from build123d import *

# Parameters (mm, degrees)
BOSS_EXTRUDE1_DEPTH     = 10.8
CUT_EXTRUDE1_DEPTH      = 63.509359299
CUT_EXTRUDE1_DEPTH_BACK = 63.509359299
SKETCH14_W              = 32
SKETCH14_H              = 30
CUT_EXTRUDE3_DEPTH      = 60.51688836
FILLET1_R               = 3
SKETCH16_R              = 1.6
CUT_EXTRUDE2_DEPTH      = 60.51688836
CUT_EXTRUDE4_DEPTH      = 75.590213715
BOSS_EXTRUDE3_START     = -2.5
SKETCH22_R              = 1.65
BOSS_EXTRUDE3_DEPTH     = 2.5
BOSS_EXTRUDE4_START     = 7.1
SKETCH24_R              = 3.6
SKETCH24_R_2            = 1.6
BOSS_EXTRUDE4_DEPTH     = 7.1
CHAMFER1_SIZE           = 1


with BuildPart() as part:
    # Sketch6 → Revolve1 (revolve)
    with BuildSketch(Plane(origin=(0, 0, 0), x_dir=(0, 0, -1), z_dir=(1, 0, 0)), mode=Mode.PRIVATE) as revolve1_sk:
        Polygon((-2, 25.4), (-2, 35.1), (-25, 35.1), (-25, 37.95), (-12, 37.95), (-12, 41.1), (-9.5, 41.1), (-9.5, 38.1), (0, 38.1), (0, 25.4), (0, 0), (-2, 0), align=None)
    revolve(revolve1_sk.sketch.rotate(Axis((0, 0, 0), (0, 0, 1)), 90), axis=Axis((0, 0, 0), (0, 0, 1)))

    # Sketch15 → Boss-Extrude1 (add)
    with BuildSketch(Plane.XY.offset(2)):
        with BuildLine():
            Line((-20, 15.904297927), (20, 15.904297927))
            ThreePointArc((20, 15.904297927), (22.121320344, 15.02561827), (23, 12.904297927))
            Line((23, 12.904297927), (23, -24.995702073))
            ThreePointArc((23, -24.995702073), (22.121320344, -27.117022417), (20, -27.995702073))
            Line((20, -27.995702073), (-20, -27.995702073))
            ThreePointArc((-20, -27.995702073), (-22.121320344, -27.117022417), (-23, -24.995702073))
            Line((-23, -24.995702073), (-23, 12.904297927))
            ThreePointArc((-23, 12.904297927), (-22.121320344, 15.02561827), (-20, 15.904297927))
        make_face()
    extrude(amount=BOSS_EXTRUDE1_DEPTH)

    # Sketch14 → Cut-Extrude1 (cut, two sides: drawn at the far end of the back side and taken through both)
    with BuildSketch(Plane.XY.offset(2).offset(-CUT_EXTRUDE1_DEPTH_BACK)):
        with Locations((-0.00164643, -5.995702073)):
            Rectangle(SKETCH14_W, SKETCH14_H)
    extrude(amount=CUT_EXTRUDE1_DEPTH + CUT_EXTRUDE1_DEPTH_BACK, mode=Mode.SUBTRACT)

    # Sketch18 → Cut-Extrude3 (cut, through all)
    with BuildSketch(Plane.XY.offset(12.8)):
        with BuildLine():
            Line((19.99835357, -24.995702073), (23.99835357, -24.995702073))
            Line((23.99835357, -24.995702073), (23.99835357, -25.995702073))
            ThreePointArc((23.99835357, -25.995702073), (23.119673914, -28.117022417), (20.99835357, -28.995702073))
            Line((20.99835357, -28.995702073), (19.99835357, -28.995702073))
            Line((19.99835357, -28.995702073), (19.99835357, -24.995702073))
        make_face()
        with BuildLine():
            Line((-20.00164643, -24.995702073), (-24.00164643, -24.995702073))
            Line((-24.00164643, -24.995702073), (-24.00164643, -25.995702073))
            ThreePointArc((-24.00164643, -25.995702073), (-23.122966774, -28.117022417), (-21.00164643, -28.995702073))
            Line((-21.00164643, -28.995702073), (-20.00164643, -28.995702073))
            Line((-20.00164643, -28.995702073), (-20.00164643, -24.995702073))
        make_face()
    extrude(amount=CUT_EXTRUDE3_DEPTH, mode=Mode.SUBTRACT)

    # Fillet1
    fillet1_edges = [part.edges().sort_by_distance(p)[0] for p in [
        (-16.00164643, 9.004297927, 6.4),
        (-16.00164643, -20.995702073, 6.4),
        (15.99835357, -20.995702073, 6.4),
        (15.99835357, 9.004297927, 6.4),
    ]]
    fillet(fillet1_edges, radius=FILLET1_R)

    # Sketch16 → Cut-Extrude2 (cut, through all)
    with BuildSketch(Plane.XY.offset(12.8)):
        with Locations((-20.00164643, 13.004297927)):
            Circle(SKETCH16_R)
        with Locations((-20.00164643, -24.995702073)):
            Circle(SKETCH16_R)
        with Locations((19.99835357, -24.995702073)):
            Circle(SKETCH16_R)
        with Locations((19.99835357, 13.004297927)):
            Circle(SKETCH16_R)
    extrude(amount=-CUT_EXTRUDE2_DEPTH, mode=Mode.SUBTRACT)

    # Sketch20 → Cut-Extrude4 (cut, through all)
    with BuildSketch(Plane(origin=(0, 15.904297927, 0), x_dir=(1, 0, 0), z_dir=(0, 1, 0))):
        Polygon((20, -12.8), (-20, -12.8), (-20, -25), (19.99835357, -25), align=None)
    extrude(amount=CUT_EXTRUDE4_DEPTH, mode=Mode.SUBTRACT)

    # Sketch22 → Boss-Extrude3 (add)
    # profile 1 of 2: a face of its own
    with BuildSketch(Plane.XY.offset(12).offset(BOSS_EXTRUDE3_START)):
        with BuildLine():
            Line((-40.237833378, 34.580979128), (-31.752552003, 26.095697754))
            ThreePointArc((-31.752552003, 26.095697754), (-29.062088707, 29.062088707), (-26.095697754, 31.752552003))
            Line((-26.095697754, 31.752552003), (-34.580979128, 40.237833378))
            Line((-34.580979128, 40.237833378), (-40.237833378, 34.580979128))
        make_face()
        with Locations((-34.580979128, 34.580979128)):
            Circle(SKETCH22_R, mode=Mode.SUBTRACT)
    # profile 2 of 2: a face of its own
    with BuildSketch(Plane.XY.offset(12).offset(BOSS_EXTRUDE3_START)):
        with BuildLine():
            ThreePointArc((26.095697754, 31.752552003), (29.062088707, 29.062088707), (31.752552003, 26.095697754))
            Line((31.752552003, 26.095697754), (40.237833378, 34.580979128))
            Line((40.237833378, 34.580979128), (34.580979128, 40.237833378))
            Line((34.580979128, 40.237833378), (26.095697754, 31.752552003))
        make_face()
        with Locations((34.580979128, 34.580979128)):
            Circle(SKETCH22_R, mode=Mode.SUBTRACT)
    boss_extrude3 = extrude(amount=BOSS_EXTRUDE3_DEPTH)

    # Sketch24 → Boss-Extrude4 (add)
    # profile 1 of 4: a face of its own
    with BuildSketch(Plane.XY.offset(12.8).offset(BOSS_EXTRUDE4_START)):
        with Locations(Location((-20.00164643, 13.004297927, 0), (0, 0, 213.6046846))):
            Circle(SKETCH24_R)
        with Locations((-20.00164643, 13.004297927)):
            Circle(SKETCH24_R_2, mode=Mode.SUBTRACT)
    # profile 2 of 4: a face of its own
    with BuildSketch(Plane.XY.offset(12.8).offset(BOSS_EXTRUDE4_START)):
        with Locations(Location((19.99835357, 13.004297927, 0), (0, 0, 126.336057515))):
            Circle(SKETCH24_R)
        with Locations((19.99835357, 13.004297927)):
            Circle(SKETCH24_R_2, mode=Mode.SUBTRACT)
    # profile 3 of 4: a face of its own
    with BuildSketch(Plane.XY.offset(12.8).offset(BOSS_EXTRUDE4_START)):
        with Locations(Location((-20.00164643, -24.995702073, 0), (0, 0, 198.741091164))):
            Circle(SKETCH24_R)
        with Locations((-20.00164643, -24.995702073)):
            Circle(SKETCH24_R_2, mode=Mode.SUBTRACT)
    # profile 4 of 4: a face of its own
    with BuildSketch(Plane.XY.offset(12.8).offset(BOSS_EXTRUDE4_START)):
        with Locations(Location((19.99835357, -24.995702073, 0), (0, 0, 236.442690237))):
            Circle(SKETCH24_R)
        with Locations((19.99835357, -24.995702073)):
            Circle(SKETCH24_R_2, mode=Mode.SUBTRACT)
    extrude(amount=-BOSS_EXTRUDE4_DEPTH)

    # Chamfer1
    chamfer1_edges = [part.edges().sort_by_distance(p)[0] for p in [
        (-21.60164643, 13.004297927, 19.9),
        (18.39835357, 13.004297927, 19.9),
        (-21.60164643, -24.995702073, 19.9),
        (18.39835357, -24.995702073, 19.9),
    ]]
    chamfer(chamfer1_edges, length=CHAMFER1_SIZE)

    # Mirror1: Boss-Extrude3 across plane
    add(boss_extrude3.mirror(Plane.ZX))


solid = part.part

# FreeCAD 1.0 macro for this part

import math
import FreeCAD as App
import Part
import Sketcher
Q = App.Units.Quantity


def edges_at(feature, points):
    """Names of the edges that pass closest to the given points."""
    edges = feature.Shape.Edges
    near = lambda p: min(range(len(edges)), key=lambda i: edges[i].distToShape(Part.Vertex(*p))[0])
    return sorted({f"Edge{near(p) + 1}" for p in points})

doc = App.newDocument("Part")
body = doc.addObject("PartDesign::Body", "Body")

# Sketch on YZ plane
sketch1 = body.newObject("Sketcher::SketchObject", "Sketch")
sketch1.AttachmentSupport = (doc.getObject("YZ_Plane"), [""])
sketch1.MapMode = "FlatFace"
sketch1.addGeometry([
    Part.LineSegment(App.Vector(35.1, 2, 0), App.Vector(0, 2, 0)),  # 0
    Part.LineSegment(App.Vector(0, 2, 0), App.Vector(0, 0, 0)),  # 1
    Part.LineSegment(App.Vector(0, 0, 0), App.Vector(38.1, 0, 0)),  # 2
    Part.LineSegment(App.Vector(38.1, 0, 0), App.Vector(38.1, 9.5, 0)),  # 3
    Part.LineSegment(App.Vector(38.1, 9.5, 0), App.Vector(41.1, 9.5, 0)),  # 4
    Part.LineSegment(App.Vector(41.1, 9.5, 0), App.Vector(41.1, 12, 0)),  # 5
    Part.LineSegment(App.Vector(41.1, 12, 0), App.Vector(38, 12, 0)),  # 6
    Part.LineSegment(App.Vector(38, 12, 0), App.Vector(38, 25, 0)),  # 7
    Part.LineSegment(App.Vector(38, 25, 0), App.Vector(35.1, 25, 0)),  # 8
    Part.LineSegment(App.Vector(35.1, 25, 0), App.Vector(35.1, 2, 0)),  # 9
], False)
sketch1.addConstraint([
    Sketcher.Constraint("Coincident", 0, 2, 1, 1),
    Sketcher.Constraint("Coincident", 1, 2, 2, 1),
    Sketcher.Constraint("Coincident", 2, 2, 3, 1),
    Sketcher.Constraint("Coincident", 3, 2, 4, 1),
    Sketcher.Constraint("Coincident", 4, 2, 5, 1),
    Sketcher.Constraint("Coincident", 5, 2, 6, 1),
    Sketcher.Constraint("Coincident", 6, 2, 7, 1),
    Sketcher.Constraint("Coincident", 7, 2, 8, 1),
    Sketcher.Constraint("Coincident", 8, 2, 9, 1),
    Sketcher.Constraint("Coincident", 9, 2, 0, 1),
    Sketcher.Constraint("Horizontal", 0),
    Sketcher.Constraint("Vertical", 1),
    Sketcher.Constraint("Horizontal", 2),
    Sketcher.Constraint("Vertical", 3),
    Sketcher.Constraint("Horizontal", 4),
    Sketcher.Constraint("Vertical", 5),
    Sketcher.Constraint("Horizontal", 6),
    Sketcher.Constraint("Vertical", 7),
    Sketcher.Constraint("Horizontal", 8),
    Sketcher.Constraint("Vertical", 9),
    Sketcher.Constraint("Coincident", 1, 2, -1, 1),
    Sketcher.Constraint("DistanceX", 4, 1, 4, 2, Q("3 mm")),
    Sketcher.Constraint("DistanceY", 1, 2, 1, 1, Q("2 mm")),
    Sketcher.Constraint("DistanceY", 7, 1, 7, 2, Q("13 mm")),
    Sketcher.Constraint("DistanceY", 9, 2, 9, 1, Q("23 mm")),
    Sketcher.Constraint("DistanceX", 0, 2, 0, 1, Q("35.1 mm")),
    Sketcher.Constraint("DistanceX", 2, 1, 2, 2, Q("38.1 mm")),
    Sketcher.Constraint("DistanceY", 3, 1, 3, 2, Q("9.5 mm")),
    Sketcher.Constraint("DistanceX", 6, 2, 6, 1, Q("3.15 mm")),
])
revolution = body.newObject("PartDesign::Revolution", "Revolution")
revolution.Profile = sketch1
revolution.ReferenceAxis = (sketch1, ["V_Axis"])
revolution.Angle = 360

# Sketch on XY plane
sketch2 = body.newObject("Sketcher::SketchObject", "Sketch001")
sketch2.AttachmentSupport = (doc.getObject("XY_Plane"), [""])
sketch2.MapMode = "FlatFace"
sketch2.AttachmentOffset = App.Placement(App.Vector(0, 0, 2), App.Rotation())
sketch2.addGeometry([
    Part.LineSegment(App.Vector(20, 15.9, 0), App.Vector(-20, 15.9, 0)),  # 0
    Part.ArcOfCircle(Part.Circle(App.Vector(-20, 12.9, 0), App.Vector(0, 0, 1), 3), math.radians(90), math.radians(180)),  # 1
    Part.LineSegment(App.Vector(-23, 12.9, 0), App.Vector(-23, -25, 0)),  # 2
    Part.ArcOfCircle(Part.Circle(App.Vector(-20, -25, 0), App.Vector(0, 0, 1), 3), math.radians(180), math.radians(270)),  # 3
    Part.LineSegment(App.Vector(-20, -28, 0), App.Vector(20, -28, 0)),  # 4
    Part.ArcOfCircle(Part.Circle(App.Vector(20, -25, 0), App.Vector(0, 0, 1), 3), math.radians(-90), math.radians(0)),  # 5
    Part.LineSegment(App.Vector(23, -25, 0), App.Vector(23, 12.9, 0)),  # 6
    Part.ArcOfCircle(Part.Circle(App.Vector(20, 12.9, 0), App.Vector(0, 0, 1), 3), math.radians(0), math.radians(90)),  # 7
], False)
sketch2.addConstraint([
    Sketcher.Constraint("Tangent", 0, 2, 1, 1),
    Sketcher.Constraint("Tangent", 1, 2, 2, 1),
    Sketcher.Constraint("Tangent", 2, 2, 3, 1),
    Sketcher.Constraint("Tangent", 3, 2, 4, 1),
    Sketcher.Constraint("Tangent", 4, 2, 5, 1),
    Sketcher.Constraint("Tangent", 5, 2, 6, 1),
    Sketcher.Constraint("Tangent", 6, 2, 7, 1),
    Sketcher.Constraint("Tangent", 7, 2, 0, 1),
    Sketcher.Constraint("Horizontal", 0),
    Sketcher.Constraint("Vertical", 2),
    Sketcher.Constraint("Horizontal", 4),
    Sketcher.Constraint("Vertical", 6),
    Sketcher.Constraint("Equal", 1, 3),
    Sketcher.Constraint("Equal", 3, 5),
    Sketcher.Constraint("Equal", 5, 7),
    Sketcher.Constraint("Radius", 1, Q("3 mm")),
    Sketcher.Constraint("DistanceX", 0, 2, 0, 1, Q("40 mm")),
    Sketcher.Constraint("DistanceY", 2, 2, 2, 1, Q("37.9 mm")),
    Sketcher.Constraint("DistanceX", 1, 3, -1, 1, Q("20 mm")),
    Sketcher.Constraint("DistanceY", -1, 1, 1, 3, Q("12.904298 mm")),
])
pad1 = body.newObject("PartDesign::Pad", "Pad")
pad1.Profile = sketch2
pad1.Length = 10.8

# Sketch on XY plane
sketch3 = body.newObject("Sketcher::SketchObject", "Sketch002")
sketch3.AttachmentSupport = (doc.getObject("XY_Plane"), [""])
sketch3.MapMode = "FlatFace"
sketch3.AttachmentOffset = App.Placement(App.Vector(0, 0, 2), App.Rotation())
sketch3.addGeometry([
    Part.LineSegment(App.Vector(-16, 9, 0), App.Vector(-16, -21, 0)),
    Part.LineSegment(App.Vector(-16, -21, 0), App.Vector(16, -21, 0)),
    Part.LineSegment(App.Vector(16, -21, 0), App.Vector(16, 9, 0)),
    Part.LineSegment(App.Vector(16, 9, 0), App.Vector(-16, 9, 0)),
], False)
sketch3.addConstraint([
    Sketcher.Constraint("Coincident", 0, 2, 1, 1),
    Sketcher.Constraint("Coincident", 1, 2, 2, 1),
    Sketcher.Constraint("Coincident", 2, 2, 3, 1),
    Sketcher.Constraint("Coincident", 3, 2, 0, 1),
    Sketcher.Constraint("Vertical", 0),
    Sketcher.Constraint("Horizontal", 1),
    Sketcher.Constraint("Vertical", 2),
    Sketcher.Constraint("Horizontal", 3),
    Sketcher.Constraint("DistanceX", 1, 1, 1, 2, Q("32 mm")),
    Sketcher.Constraint("DistanceY", 0, 2, 0, 1, Q("30 mm")),
    Sketcher.Constraint("DistanceX", 0, 2, -1, 1, Q("16.001646 mm")),
    Sketcher.Constraint("DistanceY", 0, 2, -1, 1, Q("20.995702 mm")),
])
pocket1 = body.newObject("PartDesign::Pocket", "Pocket")
pocket1.Profile = sketch3
pocket1.Type = "ThroughAll"
pocket1.Midplane = True

# Sketch on XY plane
sketch4 = body.newObject("Sketcher::SketchObject", "Sketch003")
sketch4.AttachmentSupport = (doc.getObject("XY_Plane"), [""])
sketch4.MapMode = "FlatFace"
sketch4.AttachmentOffset = App.Placement(App.Vector(0, 0, 12.8), App.Rotation())
sketch4.addGeometry([
    Part.LineSegment(App.Vector(24, -25, 0), App.Vector(20, -25, 0)),  # 0
    Part.LineSegment(App.Vector(20, -25, 0), App.Vector(20, -29, 0)),  # 1
    Part.LineSegment(App.Vector(20, -29, 0), App.Vector(21, -29, 0)),  # 2
    Part.ArcOfCircle(Part.Circle(App.Vector(21, -26, 0), App.Vector(0, 0, 1), 3), math.radians(-90), math.radians(0)),  # 3
    Part.LineSegment(App.Vector(24, -26, 0), App.Vector(24, -25, 0)),  # 4
    Part.LineSegment(App.Vector(-20, -25, 0), App.Vector(-24, -25, 0)),  # 5
    Part.LineSegment(App.Vector(-24, -25, 0), App.Vector(-24, -26, 0)),  # 6
    Part.ArcOfCircle(Part.Circle(App.Vector(-21, -26, 0), App.Vector(0, 0, 1), 3), math.radians(180), math.radians(270)),  # 7
    Part.LineSegment(App.Vector(-21, -29, 0), App.Vector(-20, -29, 0)),  # 8
    Part.LineSegment(App.Vector(-20, -29, 0), App.Vector(-20, -25, 0)),  # 9
], False)
sketch4.addConstraint([
    Sketcher.Constraint("Coincident", 0, 2, 1, 1),
    Sketcher.Constraint("Coincident", 1, 2, 2, 1),
    Sketcher.Constraint("Tangent", 2, 2, 3, 1),
    Sketcher.Constraint("Tangent", 3, 2, 4, 1),
    Sketcher.Constraint("Coincident", 4, 2, 0, 1),
    Sketcher.Constraint("Coincident", 5, 2, 6, 1),
    Sketcher.Constraint("Tangent", 6, 2, 7, 1),
    Sketcher.Constraint("Tangent", 7, 2, 8, 1),
    Sketcher.Constraint("Coincident", 8, 2, 9, 1),
    Sketcher.Constraint("Coincident", 9, 2, 5, 1),
    Sketcher.Constraint("Horizontal", 0),
    Sketcher.Constraint("Vertical", 1),
    Sketcher.Constraint("Horizontal", 2),
    Sketcher.Constraint("Vertical", 4),
    Sketcher.Constraint("Horizontal", 5),
    Sketcher.Constraint("Vertical", 6),
    Sketcher.Constraint("Horizontal", 8),
    Sketcher.Constraint("Vertical", 9),
    Sketcher.Constraint("Equal", 3, 7),
    Sketcher.Constraint("Horizontal", 3, 3, 7, 3),
    Sketcher.Constraint("Horizontal", 4, 2, 5, 2),
    Sketcher.Constraint("Equal", 0, 5),
    Sketcher.Constraint("Equal", 5, 1),
    Sketcher.Constraint("Radius", 3, Q("3 mm")),
    Sketcher.Constraint("DistanceX", 0, 2, 0, 1, Q("4 mm")),
    Sketcher.Constraint("DistanceX", 7, 3, 3, 3, Q("42 mm")),
    Sketcher.Constraint("DistanceX", -1, 1, 3, 3, Q("20.998354 mm")),
    Sketcher.Constraint("DistanceY", 3, 3, -1, 1, Q("25.995702 mm")),
])
pocket2 = body.newObject("PartDesign::Pocket", "Pocket001")
pocket2.Profile = sketch4
pocket2.Type = "ThroughAll"
pocket2.Reversed = True
doc.recompute()

fillet = body.newObject("PartDesign::Fillet", "Fillet")
fillet.Base = (pocket2, edges_at(pocket2, [
    (-16.002, 9.004, 6.4),
    (-16.002, -20.996, 6.4),
    (15.998, -20.996, 6.4),
    (15.998, 9.004, 6.4),
]))
fillet.Radius = 3

# Sketch on XY plane
sketch5 = body.newObject("Sketcher::SketchObject", "Sketch004")
sketch5.AttachmentSupport = (doc.getObject("XY_Plane"), [""])
sketch5.MapMode = "FlatFace"
sketch5.AttachmentOffset = App.Placement(App.Vector(0, 0, 12.8), App.Rotation())
sketch5.addGeometry([
    Part.Circle(App.Vector(-20, 13, 0), App.Vector(0, 0, 1), 1.6),
    Part.Circle(App.Vector(-20, -25, 0), App.Vector(0, 0, 1), 1.6),
    Part.Circle(App.Vector(20, -25, 0), App.Vector(0, 0, 1), 1.6),
    Part.Circle(App.Vector(20, 13, 0), App.Vector(0, 0, 1), 1.6),
], False)
sketch5.addConstraint([
    Sketcher.Constraint("Equal", 0, 1),
    Sketcher.Constraint("Equal", 1, 2),
    Sketcher.Constraint("Equal", 2, 3),
    Sketcher.Constraint("Horizontal", 1, 3, 2, 3),
    Sketcher.Constraint("Horizontal", 0, 3, 3, 3),
    Sketcher.Constraint("Vertical", 0, 3, 1, 3),
    Sketcher.Constraint("Vertical", 2, 3, 3, 3),
    Sketcher.Constraint("Diameter", 0, Q("3.2 mm")),
    Sketcher.Constraint("DistanceY", 1, 3, 0, 3, Q("38 mm")),
    Sketcher.Constraint("DistanceX", 1, 3, 2, 3, Q("40 mm")),
    Sketcher.Constraint("DistanceX", 0, 3, -1, 1, Q("20.001646 mm")),
    Sketcher.Constraint("DistanceY", -1, 1, 0, 3, Q("13.004298 mm")),
])
pocket3 = body.newObject("PartDesign::Pocket", "Pocket002")
pocket3.Profile = sketch5
pocket3.Type = "ThroughAll"

# Sketch on XZ plane
sketch6 = body.newObject("Sketcher::SketchObject", "Sketch005")
sketch6.AttachmentSupport = (doc.getObject("XZ_Plane"), [""])
sketch6.MapMode = "FlatFace"
sketch6.AttachmentOffset = App.Placement(App.Vector(0, 0, -15.904298), App.Rotation())
sketch6.addGeometry([
    Part.LineSegment(App.Vector(20, 13, 0), App.Vector(-20, 13, 0)),
    Part.LineSegment(App.Vector(-20, 13, 0), App.Vector(-20, 25, 0)),
    Part.LineSegment(App.Vector(-20, 25, 0), App.Vector(20, 25, 0)),
    Part.LineSegment(App.Vector(20, 25, 0), App.Vector(20, 13, 0)),
], False)
sketch6.addConstraint([
    Sketcher.Constraint("Coincident", 0, 2, 1, 1),
    Sketcher.Constraint("Coincident", 1, 2, 2, 1),
    Sketcher.Constraint("Coincident", 2, 2, 3, 1),
    Sketcher.Constraint("Coincident", 3, 2, 0, 1),
    Sketcher.Constraint("Horizontal", 0),
    Sketcher.Constraint("Vertical", 1),
    Sketcher.Constraint("Horizontal", 2),
    Sketcher.Constraint("DistanceX", 0, 2, 0, 1, Q("40 mm")),
    Sketcher.Constraint("DistanceY", 1, 1, 1, 2, Q("12.2 mm")),
    Sketcher.Constraint("DistanceX", 0, 2, -1, 1, Q("20 mm")),
    Sketcher.Constraint("DistanceY", -1, 1, 1, 2, Q("25 mm")),
    Sketcher.Constraint("DistanceX", 2, 1, 2, 2, Q("39.998354 mm")),
])
pocket4 = body.newObject("PartDesign::Pocket", "Pocket003")
pocket4.Profile = sketch6
pocket4.Type = "ThroughAll"

# Sketch on XY plane
sketch7 = body.newObject("Sketcher::SketchObject", "Sketch006")
sketch7.AttachmentSupport = (doc.getObject("XY_Plane"), [""])
sketch7.MapMode = "FlatFace"
sketch7.AttachmentOffset = App.Placement(App.Vector(0, 0, 9.5), App.Rotation())
sketch7.addGeometry([
    Part.LineSegment(App.Vector(-40.2, 34.6, 0), App.Vector(-31.8, 26.1, 0)),  # 0
    Part.ArcOfCircle(Part.Circle(App.Vector(0, 0, 0), App.Vector(0, 0, 1), 41.1), math.radians(129.41), math.radians(140.59)),  # 1
    Part.LineSegment(App.Vector(-26.1, 31.8, 0), App.Vector(-34.6, 40.2, 0)),  # 2
    Part.LineSegment(App.Vector(-34.6, 40.2, 0), App.Vector(-40.2, 34.6, 0)),  # 3
    Part.Circle(App.Vector(-34.6, 34.6, 0), App.Vector(0, 0, 1), 1.6),  # 4
    Part.ArcOfCircle(Part.Circle(App.Vector(0, 0, 0), App.Vector(0, 0, 1), 41.1), math.radians(39.41), math.radians(50.59)),  # 5
    Part.LineSegment(App.Vector(31.8, 26.1, 0), App.Vector(40.2, 34.6, 0)),  # 6
    Part.LineSegment(App.Vector(40.2, 34.6, 0), App.Vector(34.6, 40.2, 0)),  # 7
    Part.LineSegment(App.Vector(34.6, 40.2, 0), App.Vector(26.1, 31.8, 0)),  # 8
    Part.Circle(App.Vector(34.6, 34.6, 0), App.Vector(0, 0, 1), 1.6),  # 9
], False)
sketch7.addConstraint([
    Sketcher.Constraint("Coincident", 0, 2, 1, 2),
    Sketcher.Constraint("Coincident", 1, 1, 2, 1),
    Sketcher.Constraint("Coincident", 2, 2, 3, 1),
    Sketcher.Constraint("Coincident", 3, 2, 0, 1),
    Sketcher.Constraint("Coincident", 5, 1, 6, 1),
    Sketcher.Constraint("Coincident", 6, 2, 7, 1),
    Sketcher.Constraint("Coincident", 7, 2, 8, 1),
    Sketcher.Constraint("Coincident", 8, 2, 5, 2),
    Sketcher.Constraint("Coincident", 1, 3, -1, 1),
    Sketcher.Constraint("Coincident", 5, 3, -1, 1),
    Sketcher.Constraint("Equal", 1, 5),
    Sketcher.Constraint("Equal", 4, 9),
    Sketcher.Constraint("Symmetric", 4, 3, 9, 3, -2),
    Sketcher.Constraint("Symmetric", 3, 2, 6, 2, -2),
    Sketcher.Constraint("Symmetric", 2, 2, 7, 2, -2),
    Sketcher.Constraint("Parallel", 0, 2),
    Sketcher.Constraint("Perpendicular", 2, 3),
    Sketcher.Constraint("Parallel", 3, 6),
    Sketcher.Constraint("Perpendicular", 6, 7),
    Sketcher.Constraint("Perpendicular", 7, 8),
    Sketcher.Constraint("Horizontal", 9, 3, 3, 2),
    Sketcher.Constraint("Vertical", 4, 3, 2, 2),
    Sketcher.Constraint("Equal", 0, 2),
    Sketcher.Constraint("Diameter", 4, Q("3.3 mm")),
    Sketcher.Constraint("Radius", 1, Q("41.1 mm")),
    Sketcher.Constraint("Distance", 0, Q("12 mm")),
    Sketcher.Constraint("Distance", 3, Q("8 mm")),
])
pad2 = body.newObject("PartDesign::Pad", "Pad001")
pad2.Profile = sketch7
pad2.Length = 2.5

# Sketch on XY plane
sketch8 = body.newObject("Sketcher::SketchObject", "Sketch007")
sketch8.AttachmentSupport = (doc.getObject("XY_Plane"), [""])
sketch8.MapMode = "FlatFace"
sketch8.AttachmentOffset = App.Placement(App.Vector(0, 0, 19.9), App.Rotation())
sketch8.addGeometry([
    Part.Circle(App.Vector(-20, 13, 0), App.Vector(0, 0, 1), 3.6),  # 0
    Part.Circle(App.Vector(-20, 13, 0), App.Vector(0, 0, 1), 1.6),  # 1
    Part.Circle(App.Vector(20, 13, 0), App.Vector(0, 0, 1), 3.6),  # 2
    Part.Circle(App.Vector(20, 13, 0), App.Vector(0, 0, 1), 1.6),  # 3
    Part.Circle(App.Vector(-20, -25, 0), App.Vector(0, 0, 1), 3.6),  # 4
    Part.Circle(App.Vector(-20, -25, 0), App.Vector(0, 0, 1), 1.6),  # 5
    Part.Circle(App.Vector(20, -25, 0), App.Vector(0, 0, 1), 3.6),  # 6
    Part.Circle(App.Vector(20, -25, 0), App.Vector(0, 0, 1), 1.6),  # 7
], False)
sketch8.addConstraint([
    Sketcher.Constraint("Coincident", 1, 3, 0, 3),
    Sketcher.Constraint("Coincident", 3, 3, 2, 3),
    Sketcher.Constraint("Coincident", 5, 3, 4, 3),
    Sketcher.Constraint("Coincident", 7, 3, 6, 3),
    Sketcher.Constraint("Equal", 0, 2),
    Sketcher.Constraint("Equal", 1, 3),
    Sketcher.Constraint("Equal", 2, 4),
    Sketcher.Constraint("Equal", 3, 5),
    Sketcher.Constraint("Equal", 4, 6),
    Sketcher.Constraint("Equal", 5, 7),
    Sketcher.Constraint("Horizontal", 1, 3, 2, 3),
    Sketcher.Constraint("Horizontal", 5, 3, 6, 3),
    Sketcher.Constraint("Vertical", 1, 3, 4, 3),
    Sketcher.Constraint("Vertical", 3, 3, 6, 3),
    Sketcher.Constraint("Diameter", 0, Q("7.2 mm")),
    Sketcher.Constraint("Diameter", 1, Q("3.2 mm")),
    Sketcher.Constraint("DistanceX", 0, 3, 2, 3, Q("40 mm")),
    Sketcher.Constraint("DistanceY", 4, 3, 0, 3, Q("38 mm")),
    Sketcher.Constraint("DistanceX", 0, 3, -1, 1, Q("20.001646 mm")),
    Sketcher.Constraint("DistanceY", -1, 1, 0, 3, Q("13.004298 mm")),
])
pad3 = body.newObject("PartDesign::Pad", "Pad002")
pad3.Profile = sketch8
pad3.Length = 7.1
pad3.Reversed = True
doc.recompute()

chamfer = body.newObject("PartDesign::Chamfer", "Chamfer")
chamfer.Base = (pad3, edges_at(pad3, [
    (-21.602, 13.004, 19.9),
    (18.398, 13.004, 19.9),
    (-21.602, -24.996, 19.9),
    (18.398, -24.996, 19.9),
]))
chamfer.Size = 1
doc.recompute()

mirrored = body.newObject("PartDesign::Mirrored", "Mirrored")
mirrored.Originals = [pad2]
mirrored.MirrorPlane = (doc.getObject("XZ_Plane"), [""])
body.Tip = mirrored

doc.recompute()
